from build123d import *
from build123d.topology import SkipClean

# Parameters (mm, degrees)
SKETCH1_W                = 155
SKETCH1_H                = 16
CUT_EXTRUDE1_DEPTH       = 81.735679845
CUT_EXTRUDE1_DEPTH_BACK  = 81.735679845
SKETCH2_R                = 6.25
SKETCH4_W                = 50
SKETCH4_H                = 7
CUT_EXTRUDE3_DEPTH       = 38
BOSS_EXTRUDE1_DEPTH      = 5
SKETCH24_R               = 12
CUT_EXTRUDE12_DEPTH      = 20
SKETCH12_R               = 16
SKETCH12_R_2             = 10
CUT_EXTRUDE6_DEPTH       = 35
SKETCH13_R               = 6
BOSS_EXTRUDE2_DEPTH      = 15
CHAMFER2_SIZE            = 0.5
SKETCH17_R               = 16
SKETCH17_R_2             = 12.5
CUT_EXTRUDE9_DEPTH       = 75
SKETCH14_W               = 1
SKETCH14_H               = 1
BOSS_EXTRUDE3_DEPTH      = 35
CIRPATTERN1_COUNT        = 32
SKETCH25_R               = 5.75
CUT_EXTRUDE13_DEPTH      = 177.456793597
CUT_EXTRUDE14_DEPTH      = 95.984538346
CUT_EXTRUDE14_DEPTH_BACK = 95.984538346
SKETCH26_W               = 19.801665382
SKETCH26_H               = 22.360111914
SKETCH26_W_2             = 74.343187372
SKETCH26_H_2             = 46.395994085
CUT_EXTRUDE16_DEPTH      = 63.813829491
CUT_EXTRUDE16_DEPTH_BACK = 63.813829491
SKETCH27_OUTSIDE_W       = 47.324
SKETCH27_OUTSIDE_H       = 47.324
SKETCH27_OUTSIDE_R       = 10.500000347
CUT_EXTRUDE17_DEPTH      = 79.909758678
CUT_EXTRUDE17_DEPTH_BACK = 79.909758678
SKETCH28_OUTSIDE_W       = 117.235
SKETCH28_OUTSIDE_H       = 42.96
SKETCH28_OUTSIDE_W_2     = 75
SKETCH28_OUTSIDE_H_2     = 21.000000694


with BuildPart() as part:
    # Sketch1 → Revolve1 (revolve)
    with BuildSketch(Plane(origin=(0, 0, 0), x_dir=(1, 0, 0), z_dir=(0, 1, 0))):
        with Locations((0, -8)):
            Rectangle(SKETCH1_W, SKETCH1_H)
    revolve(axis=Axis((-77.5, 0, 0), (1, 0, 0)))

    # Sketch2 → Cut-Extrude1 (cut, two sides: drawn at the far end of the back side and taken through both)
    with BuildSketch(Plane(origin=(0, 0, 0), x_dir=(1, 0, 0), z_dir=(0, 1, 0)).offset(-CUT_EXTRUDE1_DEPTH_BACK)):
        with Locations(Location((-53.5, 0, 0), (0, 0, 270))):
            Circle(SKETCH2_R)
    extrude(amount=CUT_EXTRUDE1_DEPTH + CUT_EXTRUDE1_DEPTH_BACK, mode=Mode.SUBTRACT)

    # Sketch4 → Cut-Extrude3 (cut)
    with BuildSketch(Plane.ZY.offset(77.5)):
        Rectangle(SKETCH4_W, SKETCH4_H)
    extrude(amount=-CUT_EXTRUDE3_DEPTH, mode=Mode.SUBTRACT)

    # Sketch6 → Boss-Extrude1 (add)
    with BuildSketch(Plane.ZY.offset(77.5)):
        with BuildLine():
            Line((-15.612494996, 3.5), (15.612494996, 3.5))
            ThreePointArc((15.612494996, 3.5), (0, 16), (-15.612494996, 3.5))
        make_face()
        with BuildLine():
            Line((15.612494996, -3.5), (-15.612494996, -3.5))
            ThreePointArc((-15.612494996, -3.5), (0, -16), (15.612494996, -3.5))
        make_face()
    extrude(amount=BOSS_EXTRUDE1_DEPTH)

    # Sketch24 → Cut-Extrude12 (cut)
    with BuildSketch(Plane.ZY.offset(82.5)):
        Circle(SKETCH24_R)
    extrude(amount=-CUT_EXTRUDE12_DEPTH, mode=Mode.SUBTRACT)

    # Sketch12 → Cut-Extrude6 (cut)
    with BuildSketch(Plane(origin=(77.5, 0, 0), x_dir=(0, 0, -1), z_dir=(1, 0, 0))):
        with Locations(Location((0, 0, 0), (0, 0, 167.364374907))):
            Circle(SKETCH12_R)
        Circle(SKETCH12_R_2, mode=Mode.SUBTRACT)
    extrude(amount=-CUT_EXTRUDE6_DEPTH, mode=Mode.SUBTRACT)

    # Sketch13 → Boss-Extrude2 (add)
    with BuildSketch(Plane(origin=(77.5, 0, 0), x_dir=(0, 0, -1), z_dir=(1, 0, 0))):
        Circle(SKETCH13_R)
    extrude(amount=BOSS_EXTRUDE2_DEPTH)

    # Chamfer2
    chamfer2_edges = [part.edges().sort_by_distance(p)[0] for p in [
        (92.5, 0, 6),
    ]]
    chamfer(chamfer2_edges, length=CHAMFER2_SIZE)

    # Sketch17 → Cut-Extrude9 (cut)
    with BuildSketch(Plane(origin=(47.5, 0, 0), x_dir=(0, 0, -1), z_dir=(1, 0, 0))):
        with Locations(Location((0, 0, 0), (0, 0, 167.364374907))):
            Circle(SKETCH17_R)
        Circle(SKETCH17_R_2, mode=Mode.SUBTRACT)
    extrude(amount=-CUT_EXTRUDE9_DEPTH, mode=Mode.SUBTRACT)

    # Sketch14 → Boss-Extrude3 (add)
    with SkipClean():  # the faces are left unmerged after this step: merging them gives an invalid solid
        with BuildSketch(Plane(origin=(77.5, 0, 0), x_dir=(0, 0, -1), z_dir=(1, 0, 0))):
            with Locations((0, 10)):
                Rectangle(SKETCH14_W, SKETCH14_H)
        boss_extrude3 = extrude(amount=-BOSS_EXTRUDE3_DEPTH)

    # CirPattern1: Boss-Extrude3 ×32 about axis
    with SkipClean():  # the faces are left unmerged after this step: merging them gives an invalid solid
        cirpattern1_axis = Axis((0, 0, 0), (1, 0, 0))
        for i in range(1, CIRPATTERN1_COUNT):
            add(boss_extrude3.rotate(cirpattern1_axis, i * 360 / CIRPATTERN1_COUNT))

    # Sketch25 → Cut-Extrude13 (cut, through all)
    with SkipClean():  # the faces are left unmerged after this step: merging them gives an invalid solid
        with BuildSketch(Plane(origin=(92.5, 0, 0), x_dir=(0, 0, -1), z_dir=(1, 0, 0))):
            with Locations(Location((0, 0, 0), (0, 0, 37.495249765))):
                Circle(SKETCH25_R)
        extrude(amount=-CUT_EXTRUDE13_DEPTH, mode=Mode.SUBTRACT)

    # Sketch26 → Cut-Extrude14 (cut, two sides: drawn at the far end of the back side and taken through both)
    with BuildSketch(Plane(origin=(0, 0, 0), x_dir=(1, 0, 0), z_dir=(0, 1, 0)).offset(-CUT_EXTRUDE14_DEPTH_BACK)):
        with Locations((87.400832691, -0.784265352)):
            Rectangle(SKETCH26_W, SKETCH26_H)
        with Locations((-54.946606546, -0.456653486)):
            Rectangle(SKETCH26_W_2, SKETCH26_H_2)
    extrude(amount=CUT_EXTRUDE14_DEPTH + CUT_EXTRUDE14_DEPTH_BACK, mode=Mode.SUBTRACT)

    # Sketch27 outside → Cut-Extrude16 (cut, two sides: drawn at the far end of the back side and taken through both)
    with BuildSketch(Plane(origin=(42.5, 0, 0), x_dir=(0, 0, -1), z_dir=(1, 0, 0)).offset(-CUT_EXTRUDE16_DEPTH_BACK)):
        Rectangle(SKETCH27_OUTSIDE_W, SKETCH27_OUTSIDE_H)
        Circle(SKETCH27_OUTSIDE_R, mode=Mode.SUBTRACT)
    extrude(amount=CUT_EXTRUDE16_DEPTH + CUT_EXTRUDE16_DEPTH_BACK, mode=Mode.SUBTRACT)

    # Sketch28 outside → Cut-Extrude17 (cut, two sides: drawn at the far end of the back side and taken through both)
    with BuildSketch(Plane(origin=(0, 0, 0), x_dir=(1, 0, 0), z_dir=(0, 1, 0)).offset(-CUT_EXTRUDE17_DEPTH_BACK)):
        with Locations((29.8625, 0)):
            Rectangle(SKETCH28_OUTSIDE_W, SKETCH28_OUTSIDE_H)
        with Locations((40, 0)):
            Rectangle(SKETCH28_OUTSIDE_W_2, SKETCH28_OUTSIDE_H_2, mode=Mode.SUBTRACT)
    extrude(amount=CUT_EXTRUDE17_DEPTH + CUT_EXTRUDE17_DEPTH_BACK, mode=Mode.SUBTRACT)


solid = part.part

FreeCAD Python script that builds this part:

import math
import FreeCAD as App
import Part
import Sketcher

V = App.Vector
Q = App.Units.Quantity


def edges_at(feature, points):
    """Names of the edges that pass closest to the given points."""
    edges = feature.Shape.Edges
    near = lambda p: min(range(len(edges)), key=lambda i: edges[i].distToShape(Part.Vertex(*p))[0])
    return sorted({f"Edge{near(p) + 1}" for p in points})


def add_polygon(sketch, points):
    """Adds a closed chain of lines whose ends are joined by coincident constraints."""
    first, n = sketch.GeometryCount, len(points)
    for a, b in zip(points, points[1:] + points[:1]):
        sketch.addGeometry(Part.LineSegment(App.Vector(*a, 0), App.Vector(*b, 0)), False)
    for i in range(n):
        sketch.addConstraint(Sketcher.Constraint("Coincident", first + i, 2, first + (i + 1) % n, 1))

doc = App.newDocument("Part")
params = doc.addObject("Spreadsheet::Sheet", "Params")
for row, (alias, value) in enumerate([
    ("sketch1_width", "155 mm"),
    ("sketch1_height", "16 mm"),
    ("revolution_angle", "360 deg"),
    ("sketch2_diameter", "12.5 mm"),
    ("sketch3_width", "7 mm"),
    ("sketch3_height", "50 mm"),
    ("pocket2_length", "38 mm"),
    ("sketch4_radius", "16 mm"),
    ("pad1_length", "5 mm"),
    ("sketch5_diameter", "24 mm"),
    ("pocket3_length", "20 mm"),
    ("sketch6_diameter", "32 mm"),
    ("sketch6_diameter2", "20 mm"),
    ("pocket4_length", "35 mm"),
    ("sketch7_diameter", "12 mm"),
    ("pad2_length", "15 mm"),
    ("chamfer_size", "0.5 mm"),
    ("sketch8_diameter", "32 mm"),
    ("sketch8_diameter2", "25 mm"),
    ("pocket5_length", "75 mm"),
    ("sketch9_width", "1 mm"),
    ("pad3_length", "35 mm"),
    ("sketch10_diameter", "11.5 mm"),
    ("sketch12_diameter", "21.000001 mm"),
    ("sketch13_width", "75 mm"),
    ("sketch13_height", "21.000001 mm"),
    ("sketch13_height2", "42.96 mm"),
], start=1):
    params.set(f"A{row}", alias)
    params.set(f"B{row}", "=" + value)
    params.setAlias(f"B{row}", alias)

body = doc.addObject("PartDesign::Body", "Body")

sketch1 = body.newObject("Sketcher::SketchObject", "Sketch")
sketch1.AttachmentSupport = (doc.getObject("XZ_Plane"), [""])
sketch1.MapMode = "FlatFace"
add_polygon(sketch1, [(-78, 0), (-78, 16), (78, 16), (78, 0)])
sketch1.addConstraint([
    Sketcher.Constraint("Vertical", 0),
    Sketcher.Constraint("Horizontal", 1),
    Sketcher.Constraint("Vertical", 2),
    Sketcher.Constraint("Horizontal", 3),
    Sketcher.Constraint("Symmetric", 2, 2, 3, 2, -1, 1),
    Sketcher.Constraint("DistanceX", 1, 1, 1, 2, Q("155 mm")),
    Sketcher.Constraint("DistanceY", 0, 1, 0, 2, Q("16 mm")),
])
sketch1.setExpression("Constraints[9]", "Params.sketch1_width")
sketch1.setExpression("Constraints[10]", "Params.sketch1_height")
revolution = body.newObject("PartDesign::Revolution", "Revolution")
revolution.Profile = sketch1
revolution.ReferenceAxis = (sketch1, ["H_Axis"])
revolution.setExpression("Angle", "Params.revolution_angle")

sketch2 = body.newObject("Sketcher::SketchObject", "Sketch001")
sketch2.AttachmentSupport = (doc.getObject("XZ_Plane"), [""])
sketch2.MapMode = "FlatFace"
sketch2.addGeometry(Part.Circle(V(-54, 0, 0), V(0, 0, 1), 6), False)
sketch2.addConstraint([
    Sketcher.Constraint("PointOnObject", 0, 3, -1),
    Sketcher.Constraint("Diameter", 0, Q("12.5 mm")),
    Sketcher.Constraint("DistanceX", 0, 3, -1, 1, Q("53.5 mm")),
])
sketch2.setExpression("Constraints[1]", "Params.sketch2_diameter")
pocket1 = body.newObject("PartDesign::Pocket", "Pocket")
pocket1.Profile = sketch2
pocket1.Type = "ThroughAll"
pocket1.Midplane = True

sketch3 = body.newObject("Sketcher::SketchObject", "Sketch002")
sketch3.AttachmentSupport = (doc.getObject("YZ_Plane"), [""])
sketch3.MapMode = "FlatFace"
sketch3.AttachmentOffset = App.Placement(V(0, 0, -77.5), App.Rotation())
add_polygon(sketch3, [(4, -25), (-4, -25), (-4, 25), (4, 25)])
sketch3.addConstraint([
    Sketcher.Constraint("Horizontal", 0),
    Sketcher.Constraint("Vertical", 1),
    Sketcher.Constraint("Horizontal", 2),
    Sketcher.Constraint("Vertical", 3),
    Sketcher.Constraint("Symmetric", 0, 2, 2, 2, -1, 1),
    Sketcher.Constraint("DistanceX", 0, 2, 0, 1, Q("7 mm")),
    Sketcher.Constraint("DistanceY", 1, 1, 1, 2, Q("50 mm")),
])
sketch3.setExpression("Constraints[9]", "Params.sketch3_width")
sketch3.setExpression("Constraints[10]", "Params.sketch3_height")
pocket2 = body.newObject("PartDesign::Pocket", "Pocket001")
pocket2.Profile = sketch3
pocket2.setExpression("Length", "Params.pocket2_length")
pocket2.Reversed = True

sketch4 = body.newObject("Sketcher::SketchObject", "Sketch003")
sketch4.AttachmentSupport = (doc.getObject("YZ_Plane"), [""])
sketch4.MapMode = "FlatFace"
sketch4.AttachmentOffset = App.Placement(V(0, 0, -77.5), App.Rotation())
sketch4.addGeometry([
    Part.LineSegment(V(4, -16, 0), V(4, 16, 0)),
    Part.ArcOfCircle(Part.Circle(V(0, 0, 0), V(0, 0, 1), 16), math.radians(-77), math.radians(77)),
    Part.LineSegment(V(-4, 16, 0), V(-4, -16, 0)),
    Part.ArcOfCircle(Part.Circle(V(0, 0, 0), V(0, 0, 1), 16), math.radians(103), math.radians(257)),
], False)
sketch4.addConstraint([
    Sketcher.Constraint("Coincident", 0, 1, 1, 1),
    Sketcher.Constraint("Coincident", 1, 2, 0, 2),
    Sketcher.Constraint("Coincident", 2, 1, 3, 1),
    Sketcher.Constraint("Coincident", 3, 2, 2, 2),
    Sketcher.Constraint("Vertical", 0),
    Sketcher.Constraint("Vertical", 2),
    Sketcher.Constraint("Coincident", 1, 3, -1, 1),
    Sketcher.Constraint("Coincident", 3, 3, -1, 1),
    Sketcher.Constraint("Equal", 1, 3),
    Sketcher.Constraint("Horizontal", 1, 2, 2, 1),
    Sketcher.Constraint("Radius", 1, Q("16 mm")),
    Sketcher.Constraint("DistanceX", 2, 1, 1, 2, Q("7 mm")),
])
sketch4.setExpression("Constraints[10]", "Params.sketch4_radius")
pad1 = body.newObject("PartDesign::Pad", "Pad")
pad1.Profile = sketch4
pad1.setExpression("Length", "Params.pad1_length")
pad1.Reversed = True

sketch5 = body.newObject("Sketcher::SketchObject", "Sketch004")
sketch5.AttachmentSupport = (doc.getObject("YZ_Plane"), [""])
sketch5.MapMode = "FlatFace"
sketch5.AttachmentOffset = App.Placement(V(0, 0, -82.5), App.Rotation())
sketch5.addGeometry(Part.Circle(V(0, 0, 0), V(0, 0, 1), 12), False)
sketch5.addConstraint([
    Sketcher.Constraint("Coincident", 0, 3, -1, 1),
    Sketcher.Constraint("Diameter", 0, Q("24 mm")),
])
sketch5.setExpression("Constraints[1]", "Params.sketch5_diameter")
pocket3 = body.newObject("PartDesign::Pocket", "Pocket002")
pocket3.Profile = sketch5
pocket3.setExpression("Length", "Params.pocket3_length")
pocket3.Reversed = True

sketch6 = body.newObject("Sketcher::SketchObject", "Sketch005")
sketch6.AttachmentSupport = (doc.getObject("YZ_Plane"), [""])
sketch6.MapMode = "FlatFace"
sketch6.AttachmentOffset = App.Placement(V(0, 0, 77.5), App.Rotation())
sketch6.addGeometry([
    Part.Circle(V(0, 0, 0), V(0, 0, 1), 16),
    Part.Circle(V(0, 0, 0), V(0, 0, 1), 10),
], False)
sketch6.addConstraint([
    Sketcher.Constraint("Coincident", 0, 3, -1, 1),
    Sketcher.Constraint("Coincident", 1, 3, -1, 1),
    Sketcher.Constraint("Diameter", 0, Q("32 mm")),
    Sketcher.Constraint("Diameter", 1, Q("20 mm")),
])
sketch6.setExpression("Constraints[2]", "Params.sketch6_diameter")
sketch6.setExpression("Constraints[3]", "Params.sketch6_diameter2")
pocket4 = body.newObject("PartDesign::Pocket", "Pocket003")
pocket4.Profile = sketch6
pocket4.setExpression("Length", "Params.pocket4_length")

sketch7 = body.newObject("Sketcher::SketchObject", "Sketch006")
sketch7.AttachmentSupport = (doc.getObject("YZ_Plane"), [""])
sketch7.MapMode = "FlatFace"
sketch7.AttachmentOffset = App.Placement(V(0, 0, 77.5), App.Rotation())
sketch7.addGeometry(Part.Circle(V(0, 0, 0), V(0, 0, 1), 6), False)
sketch7.addConstraint([
    Sketcher.Constraint("Coincident", 0, 3, -1, 1),
    Sketcher.Constraint("Diameter", 0, Q("12 mm")),
])
sketch7.setExpression("Constraints[1]", "Params.sketch7_diameter")
pad2 = body.newObject("PartDesign::Pad", "Pad001")
pad2.Profile = sketch7
pad2.setExpression("Length", "Params.pad2_length")
doc.recompute()

chamfer = body.newObject("PartDesign::Chamfer", "Chamfer")
chamfer.Base = (pad2, edges_at(pad2, [(92.5, 0, 6)]))
chamfer.setExpression("Size", "Params.chamfer_size")

sketch8 = body.newObject("Sketcher::SketchObject", "Sketch007")
sketch8.AttachmentSupport = (doc.getObject("YZ_Plane"), [""])
sketch8.MapMode = "FlatFace"
sketch8.AttachmentOffset = App.Placement(V(0, 0, 47.5), App.Rotation())
sketch8.addGeometry([
    Part.Circle(V(0, 0, 0), V(0, 0, 1), 16),
    Part.Circle(V(0, 0, 0), V(0, 0, 1), 12),
], False)
sketch8.addConstraint([
    Sketcher.Constraint("Coincident", 0, 3, -1, 1),
    Sketcher.Constraint("Coincident", 1, 3, -1, 1),
    Sketcher.Constraint("Diameter", 0, Q("32 mm")),
    Sketcher.Constraint("Diameter", 1, Q("25 mm")),
])
sketch8.setExpression("Constraints[2]", "Params.sketch8_diameter")
sketch8.setExpression("Constraints[3]", "Params.sketch8_diameter2")
pocket5 = body.newObject("PartDesign::Pocket", "Pocket004")
pocket5.Profile = sketch8
pocket5.setExpression("Length", "Params.pocket5_length")

sketch9 = body.newObject("Sketcher::SketchObject", "Sketch008")
sketch9.AttachmentSupport = (doc.getObject("YZ_Plane"), [""])
sketch9.MapMode = "FlatFace"
sketch9.AttachmentOffset = App.Placement(V(0, 0, 77.5), App.Rotation())
add_polygon(sketch9, [(10.5, 0.5), (9.5, 0.5), (9.5, -0.5), (10.5, -0.5)])
sketch9.addConstraint([
    Sketcher.Constraint("Horizontal", 0),
    Sketcher.Constraint("Vertical", 1),
    Sketcher.Constraint("Horizontal", 2),
    Sketcher.Constraint("Vertical", 3),
    Sketcher.Constraint("Equal", 2, 1),
    Sketcher.Constraint("DistanceX", 0, 2, 0, 1, Q("1 mm")),
    Sketcher.Constraint("DistanceX", -1, 1, 0, 2, Q("9.5 mm")),
    Sketcher.Constraint("DistanceY", -1, 1, 0, 2, Q("0.5 mm")),
])
sketch9.setExpression("Constraints[9]", "Params.sketch9_width")
pad3 = body.newObject("PartDesign::Pad", "Pad002")
pad3.Profile = sketch9
pad3.setExpression("Length", "Params.pad3_length")
pad3.Reversed = True
doc.recompute()

polarpattern = body.newObject("PartDesign::PolarPattern", "PolarPattern")
polarpattern.Originals = [pad3]
polarpattern.Axis = (doc.getObject("X_Axis"), [""])
polarpattern.Angle = 360
polarpattern.Occurrences = 32
body.Tip = polarpattern

sketch10 = body.newObject("Sketcher::SketchObject", "Sketch009")
sketch10.AttachmentSupport = (doc.getObject("YZ_Plane"), [""])
sketch10.MapMode = "FlatFace"
sketch10.AttachmentOffset = App.Placement(V(0, 0, 92.5), App.Rotation())
sketch10.addGeometry(Part.Circle(V(0, 0, 0), V(0, 0, 1), 6), False)
sketch10.addConstraint([
    Sketcher.Constraint("Coincident", 0, 3, -1, 1),
    Sketcher.Constraint("Diameter", 0, Q("11.5 mm")),
])
sketch10.setExpression("Constraints[1]", "Params.sketch10_diameter")
pocket6 = body.newObject("PartDesign::Pocket", "Pocket005")
pocket6.Profile = sketch10
pocket6.Type = "ThroughAll"

sketch11 = body.newObject("Sketcher::SketchObject", "Sketch010")
sketch11.AttachmentSupport = (doc.getObject("XZ_Plane"), [""])
sketch11.MapMode = "FlatFace"
add_polygon(sketch11, [(78, -10), (78, 12), (97, 12), (97, -10)])
add_polygon(sketch11, [(-92, -23), (-92, 24), (-18, 24), (-18, -23)])
sketch11.addConstraint([
    Sketcher.Constraint("Vertical", 0),
    Sketcher.Constraint("Horizontal", 1),
    Sketcher.Constraint("Vertical", 2),
    Sketcher.Constraint("Horizontal", 3),
    Sketcher.Constraint("Vertical", 4),
    Sketcher.Constraint("Horizontal", 5),
    Sketcher.Constraint("Vertical", 6),
    Sketcher.Constraint("Horizontal", 7),
    Sketcher.Constraint("DistanceX", -1, 1, 0, 2, Q("77.5 mm")),
    Sketcher.Constraint("DistanceY", 0, 1, 0, 2, Q("22.360112 mm")),
    Sketcher.Constraint("DistanceX", 4, 2, -1, 1, Q("92.1182 mm")),
    Sketcher.Constraint("DistanceX", 1, 1, 1, 2, Q("19.801665 mm")),
    Sketcher.Constraint("DistanceX", 5, 1, 5, 2, Q("74.343187 mm")),
    Sketcher.Constraint("DistanceY", 4, 1, 4, 2, Q("46.395994 mm")),
    Sketcher.Constraint("DistanceY", -1, 1, 0, 2, Q("11.964321 mm")),
    Sketcher.Constraint("DistanceY", -1, 1, 4, 2, Q("23.654651 mm")),
])
pocket7 = body.newObject("PartDesign::Pocket", "Pocket006")
pocket7.Profile = sketch11
pocket7.Type = "ThroughAll"
pocket7.Midplane = True

sketch12 = body.newObject("Sketcher::SketchObject", "Sketch011")
sketch12.AttachmentSupport = (doc.getObject("YZ_Plane"), [""])
sketch12.MapMode = "FlatFace"
sketch12.AttachmentOffset = App.Placement(V(0, 0, 42.5), App.Rotation())
add_polygon(sketch12, [(24, 24), (-24, 24), (-24, -24), (24, -24)])
sketch12.addGeometry(Part.Circle(V(0, 0, 0), V(0, 0, 1), 11), False)
sketch12.addConstraint([
    Sketcher.Constraint("Horizontal", 0),
    Sketcher.Constraint("Vertical", 1),
    Sketcher.Constraint("Horizontal", 2),
    Sketcher.Constraint("Vertical", 3),
    Sketcher.Constraint("Coincident", 4, 3, -1, 1),
    Sketcher.Constraint("Symmetric", 0, 2, 2, 2, -1, 1),
    Sketcher.Constraint("Equal", 2, 1),
    Sketcher.Constraint("Diameter", 4, Q("21.000001 mm")),
    Sketcher.Constraint("DistanceX", 0, 2, 0, 1, Q("47.324 mm")),
])
sketch12.setExpression("Constraints[11]", "Params.sketch12_diameter")
pocket8 = body.newObject("PartDesign::Pocket", "Pocket007")
pocket8.Profile = sketch12
pocket8.Type = "ThroughAll"
pocket8.Midplane = True

sketch13 = body.newObject("Sketcher::SketchObject", "Sketch012")
sketch13.AttachmentSupport = (doc.getObject("XZ_Plane"), [""])
sketch13.MapMode = "FlatFace"
add_polygon(sketch13, [(-29, -21), (-29, 21), (88, 21), (88, -21)])
add_polygon(sketch13, [(78, 11), (2, 11), (2, -11), (78, -11)])
sketch13.addConstraint([
    Sketcher.Constraint("Vertical", 0),
    Sketcher.Constraint("Horizontal", 1),
    Sketcher.Constraint("Vertical", 2),
    Sketcher.Constraint("Horizontal", 3),
    Sketcher.Constraint("Horizontal", 4),
    Sketcher.Constraint("Vertical", 5),
    Sketcher.Constraint("Horizontal", 6),
    Sketcher.Constraint("Vertical", 7),
    Sketcher.Constraint("DistanceX", 4, 2, 4, 1, Q("75 mm")),
    Sketcher.Constraint("DistanceY", 5, 2, 5, 1, Q("21.000001 mm")),
    Sketcher.Constraint("DistanceY", 0, 1, 0, 2, Q("42.96 mm")),
    Sketcher.Constraint("DistanceX", -1, 1, 4, 2, Q("2.5 mm")),
    Sketcher.Constraint("DistanceY", -1, 1, 4, 2, Q("10.5 mm")),
    Sketcher.Constraint("DistanceX", 1, 1, 1, 2, Q("117.235 mm")),
    Sketcher.Constraint("DistanceY", -1, 1, 0, 2, Q("21.48 mm")),
    Sketcher.Constraint("DistanceX", -1, 1, 1, 2, Q("88.48 mm")),
])
sketch13.setExpression("Constraints[16]", "Params.sketch13_width")
sketch13.setExpression("Constraints[17]", "Params.sketch13_height")
sketch13.setExpression("Constraints[18]", "Params.sketch13_height2")
pocket9 = body.newObject("PartDesign::Pocket", "Pocket008")
pocket9.Profile = sketch13
pocket9.Type = "ThroughAll"
pocket9.Midplane = True

doc.recompute()
